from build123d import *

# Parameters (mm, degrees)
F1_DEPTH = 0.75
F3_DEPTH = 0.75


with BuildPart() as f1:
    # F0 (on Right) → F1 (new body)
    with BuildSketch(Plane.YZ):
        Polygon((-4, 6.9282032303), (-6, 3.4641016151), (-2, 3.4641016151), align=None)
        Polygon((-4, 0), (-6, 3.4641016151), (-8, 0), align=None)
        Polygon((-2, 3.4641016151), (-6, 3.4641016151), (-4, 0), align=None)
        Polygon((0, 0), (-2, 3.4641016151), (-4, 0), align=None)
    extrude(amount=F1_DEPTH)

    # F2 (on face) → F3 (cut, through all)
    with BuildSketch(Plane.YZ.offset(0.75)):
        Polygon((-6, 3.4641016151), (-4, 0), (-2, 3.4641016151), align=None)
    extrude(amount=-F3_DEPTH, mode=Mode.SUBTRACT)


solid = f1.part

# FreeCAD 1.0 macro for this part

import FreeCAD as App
import Part
import Sketcher

V = App.Vector
Q = App.Units.Quantity

doc = App.newDocument("Part")
body = doc.addObject("PartDesign::Body", "Body")
body.AllowCompound = True

sketch1 = body.newObject("Sketcher::SketchObject", "Sketch")
sketch1.AttachmentSupport = (doc.getObject("YZ_Plane"), [""])
sketch1.MapMode = "FlatFace"
sketch1.addGeometry([
    Part.LineSegment(V(-4, 6.9, 0), V(-6, 3.5, 0)),
    Part.LineSegment(V(-6, 3.5, 0), V(-8, 0, 0)),
    Part.LineSegment(V(-8, 0, 0), V(0, 0, 0)),
    Part.LineSegment(V(0, 0, 0), V(-2, 3.5, 0)),
    Part.LineSegment(V(-2, 3.5, 0), V(-4, 6.9, 0)),
], False)
sketch1.addConstraint([
    Sketcher.Constraint("Coincident", 0, 2, 1, 1),
    Sketcher.Constraint("Coincident", 1, 2, 2, 1),
    Sketcher.Constraint("Coincident", 2, 2, 3, 1),
    Sketcher.Constraint("Coincident", 3, 2, 4, 1),
    Sketcher.Constraint("Coincident", 4, 2, 0, 1),
    Sketcher.Constraint("Horizontal", 2),
    Sketcher.Constraint("Coincident", 2, 2, -1, 1),
    Sketcher.Constraint("Parallel", 0, 1),
    Sketcher.Constraint("Parallel", 3, 4),
    Sketcher.Constraint("Horizontal", 0, 2, 3, 2),
    Sketcher.Constraint("Equal", 0, 1),
    Sketcher.Constraint("Equal", 1, 3),
    Sketcher.Constraint("DistanceX", 2, 1, 2, 2, Q("8 mm")),
    Sketcher.Constraint("Angle", 0, Q("-120 deg")),
])
pad1 = body.newObject("PartDesign::Pad", "Pad")
pad1.Profile = sketch1
pad1.Length = 0.75

sketch2 = body.newObject("Sketcher::SketchObject", "Sketch001")
sketch2.AttachmentSupport = (doc.getObject("YZ_Plane"), [""])
sketch2.MapMode = "FlatFace"
sketch2.AttachmentOffset = App.Placement(V(0, 0, 0.75), App.Rotation())
sketch2.addGeometry([
    Part.LineSegment(V(-6, 3.5, 0), V(-4, 0, 0)),
    Part.LineSegment(V(-4, 0, 0), V(-2, 3.5, 0)),
    Part.LineSegment(V(-2, 3.5, 0), V(-6, 3.5, 0)),
], False)
sketch2.addConstraint([
    Sketcher.Constraint("Coincident", 0, 2, 1, 1),
    Sketcher.Constraint("Coincident", 1, 2, 2, 1),
    Sketcher.Constraint("Coincident", 2, 2, 0, 1),
    Sketcher.Constraint("Horizontal", 2),
    Sketcher.Constraint("PointOnObject", 0, 2, -1),
    Sketcher.Constraint("Equal", 0, 1),
    Sketcher.Constraint("DistanceX", 2, 2, 2, 1, Q("4 mm")),
    Sketcher.Constraint("Angle", 0, Q("-60 deg")),
    Sketcher.Constraint("DistanceX", 0, 2, -1, 1, Q("4 mm")),
])
pocket1 = body.newObject("PartDesign::Pocket", "Pocket")
pocket1.Profile = sketch2
pocket1.Type = "ThroughAll"

doc.recompute()
